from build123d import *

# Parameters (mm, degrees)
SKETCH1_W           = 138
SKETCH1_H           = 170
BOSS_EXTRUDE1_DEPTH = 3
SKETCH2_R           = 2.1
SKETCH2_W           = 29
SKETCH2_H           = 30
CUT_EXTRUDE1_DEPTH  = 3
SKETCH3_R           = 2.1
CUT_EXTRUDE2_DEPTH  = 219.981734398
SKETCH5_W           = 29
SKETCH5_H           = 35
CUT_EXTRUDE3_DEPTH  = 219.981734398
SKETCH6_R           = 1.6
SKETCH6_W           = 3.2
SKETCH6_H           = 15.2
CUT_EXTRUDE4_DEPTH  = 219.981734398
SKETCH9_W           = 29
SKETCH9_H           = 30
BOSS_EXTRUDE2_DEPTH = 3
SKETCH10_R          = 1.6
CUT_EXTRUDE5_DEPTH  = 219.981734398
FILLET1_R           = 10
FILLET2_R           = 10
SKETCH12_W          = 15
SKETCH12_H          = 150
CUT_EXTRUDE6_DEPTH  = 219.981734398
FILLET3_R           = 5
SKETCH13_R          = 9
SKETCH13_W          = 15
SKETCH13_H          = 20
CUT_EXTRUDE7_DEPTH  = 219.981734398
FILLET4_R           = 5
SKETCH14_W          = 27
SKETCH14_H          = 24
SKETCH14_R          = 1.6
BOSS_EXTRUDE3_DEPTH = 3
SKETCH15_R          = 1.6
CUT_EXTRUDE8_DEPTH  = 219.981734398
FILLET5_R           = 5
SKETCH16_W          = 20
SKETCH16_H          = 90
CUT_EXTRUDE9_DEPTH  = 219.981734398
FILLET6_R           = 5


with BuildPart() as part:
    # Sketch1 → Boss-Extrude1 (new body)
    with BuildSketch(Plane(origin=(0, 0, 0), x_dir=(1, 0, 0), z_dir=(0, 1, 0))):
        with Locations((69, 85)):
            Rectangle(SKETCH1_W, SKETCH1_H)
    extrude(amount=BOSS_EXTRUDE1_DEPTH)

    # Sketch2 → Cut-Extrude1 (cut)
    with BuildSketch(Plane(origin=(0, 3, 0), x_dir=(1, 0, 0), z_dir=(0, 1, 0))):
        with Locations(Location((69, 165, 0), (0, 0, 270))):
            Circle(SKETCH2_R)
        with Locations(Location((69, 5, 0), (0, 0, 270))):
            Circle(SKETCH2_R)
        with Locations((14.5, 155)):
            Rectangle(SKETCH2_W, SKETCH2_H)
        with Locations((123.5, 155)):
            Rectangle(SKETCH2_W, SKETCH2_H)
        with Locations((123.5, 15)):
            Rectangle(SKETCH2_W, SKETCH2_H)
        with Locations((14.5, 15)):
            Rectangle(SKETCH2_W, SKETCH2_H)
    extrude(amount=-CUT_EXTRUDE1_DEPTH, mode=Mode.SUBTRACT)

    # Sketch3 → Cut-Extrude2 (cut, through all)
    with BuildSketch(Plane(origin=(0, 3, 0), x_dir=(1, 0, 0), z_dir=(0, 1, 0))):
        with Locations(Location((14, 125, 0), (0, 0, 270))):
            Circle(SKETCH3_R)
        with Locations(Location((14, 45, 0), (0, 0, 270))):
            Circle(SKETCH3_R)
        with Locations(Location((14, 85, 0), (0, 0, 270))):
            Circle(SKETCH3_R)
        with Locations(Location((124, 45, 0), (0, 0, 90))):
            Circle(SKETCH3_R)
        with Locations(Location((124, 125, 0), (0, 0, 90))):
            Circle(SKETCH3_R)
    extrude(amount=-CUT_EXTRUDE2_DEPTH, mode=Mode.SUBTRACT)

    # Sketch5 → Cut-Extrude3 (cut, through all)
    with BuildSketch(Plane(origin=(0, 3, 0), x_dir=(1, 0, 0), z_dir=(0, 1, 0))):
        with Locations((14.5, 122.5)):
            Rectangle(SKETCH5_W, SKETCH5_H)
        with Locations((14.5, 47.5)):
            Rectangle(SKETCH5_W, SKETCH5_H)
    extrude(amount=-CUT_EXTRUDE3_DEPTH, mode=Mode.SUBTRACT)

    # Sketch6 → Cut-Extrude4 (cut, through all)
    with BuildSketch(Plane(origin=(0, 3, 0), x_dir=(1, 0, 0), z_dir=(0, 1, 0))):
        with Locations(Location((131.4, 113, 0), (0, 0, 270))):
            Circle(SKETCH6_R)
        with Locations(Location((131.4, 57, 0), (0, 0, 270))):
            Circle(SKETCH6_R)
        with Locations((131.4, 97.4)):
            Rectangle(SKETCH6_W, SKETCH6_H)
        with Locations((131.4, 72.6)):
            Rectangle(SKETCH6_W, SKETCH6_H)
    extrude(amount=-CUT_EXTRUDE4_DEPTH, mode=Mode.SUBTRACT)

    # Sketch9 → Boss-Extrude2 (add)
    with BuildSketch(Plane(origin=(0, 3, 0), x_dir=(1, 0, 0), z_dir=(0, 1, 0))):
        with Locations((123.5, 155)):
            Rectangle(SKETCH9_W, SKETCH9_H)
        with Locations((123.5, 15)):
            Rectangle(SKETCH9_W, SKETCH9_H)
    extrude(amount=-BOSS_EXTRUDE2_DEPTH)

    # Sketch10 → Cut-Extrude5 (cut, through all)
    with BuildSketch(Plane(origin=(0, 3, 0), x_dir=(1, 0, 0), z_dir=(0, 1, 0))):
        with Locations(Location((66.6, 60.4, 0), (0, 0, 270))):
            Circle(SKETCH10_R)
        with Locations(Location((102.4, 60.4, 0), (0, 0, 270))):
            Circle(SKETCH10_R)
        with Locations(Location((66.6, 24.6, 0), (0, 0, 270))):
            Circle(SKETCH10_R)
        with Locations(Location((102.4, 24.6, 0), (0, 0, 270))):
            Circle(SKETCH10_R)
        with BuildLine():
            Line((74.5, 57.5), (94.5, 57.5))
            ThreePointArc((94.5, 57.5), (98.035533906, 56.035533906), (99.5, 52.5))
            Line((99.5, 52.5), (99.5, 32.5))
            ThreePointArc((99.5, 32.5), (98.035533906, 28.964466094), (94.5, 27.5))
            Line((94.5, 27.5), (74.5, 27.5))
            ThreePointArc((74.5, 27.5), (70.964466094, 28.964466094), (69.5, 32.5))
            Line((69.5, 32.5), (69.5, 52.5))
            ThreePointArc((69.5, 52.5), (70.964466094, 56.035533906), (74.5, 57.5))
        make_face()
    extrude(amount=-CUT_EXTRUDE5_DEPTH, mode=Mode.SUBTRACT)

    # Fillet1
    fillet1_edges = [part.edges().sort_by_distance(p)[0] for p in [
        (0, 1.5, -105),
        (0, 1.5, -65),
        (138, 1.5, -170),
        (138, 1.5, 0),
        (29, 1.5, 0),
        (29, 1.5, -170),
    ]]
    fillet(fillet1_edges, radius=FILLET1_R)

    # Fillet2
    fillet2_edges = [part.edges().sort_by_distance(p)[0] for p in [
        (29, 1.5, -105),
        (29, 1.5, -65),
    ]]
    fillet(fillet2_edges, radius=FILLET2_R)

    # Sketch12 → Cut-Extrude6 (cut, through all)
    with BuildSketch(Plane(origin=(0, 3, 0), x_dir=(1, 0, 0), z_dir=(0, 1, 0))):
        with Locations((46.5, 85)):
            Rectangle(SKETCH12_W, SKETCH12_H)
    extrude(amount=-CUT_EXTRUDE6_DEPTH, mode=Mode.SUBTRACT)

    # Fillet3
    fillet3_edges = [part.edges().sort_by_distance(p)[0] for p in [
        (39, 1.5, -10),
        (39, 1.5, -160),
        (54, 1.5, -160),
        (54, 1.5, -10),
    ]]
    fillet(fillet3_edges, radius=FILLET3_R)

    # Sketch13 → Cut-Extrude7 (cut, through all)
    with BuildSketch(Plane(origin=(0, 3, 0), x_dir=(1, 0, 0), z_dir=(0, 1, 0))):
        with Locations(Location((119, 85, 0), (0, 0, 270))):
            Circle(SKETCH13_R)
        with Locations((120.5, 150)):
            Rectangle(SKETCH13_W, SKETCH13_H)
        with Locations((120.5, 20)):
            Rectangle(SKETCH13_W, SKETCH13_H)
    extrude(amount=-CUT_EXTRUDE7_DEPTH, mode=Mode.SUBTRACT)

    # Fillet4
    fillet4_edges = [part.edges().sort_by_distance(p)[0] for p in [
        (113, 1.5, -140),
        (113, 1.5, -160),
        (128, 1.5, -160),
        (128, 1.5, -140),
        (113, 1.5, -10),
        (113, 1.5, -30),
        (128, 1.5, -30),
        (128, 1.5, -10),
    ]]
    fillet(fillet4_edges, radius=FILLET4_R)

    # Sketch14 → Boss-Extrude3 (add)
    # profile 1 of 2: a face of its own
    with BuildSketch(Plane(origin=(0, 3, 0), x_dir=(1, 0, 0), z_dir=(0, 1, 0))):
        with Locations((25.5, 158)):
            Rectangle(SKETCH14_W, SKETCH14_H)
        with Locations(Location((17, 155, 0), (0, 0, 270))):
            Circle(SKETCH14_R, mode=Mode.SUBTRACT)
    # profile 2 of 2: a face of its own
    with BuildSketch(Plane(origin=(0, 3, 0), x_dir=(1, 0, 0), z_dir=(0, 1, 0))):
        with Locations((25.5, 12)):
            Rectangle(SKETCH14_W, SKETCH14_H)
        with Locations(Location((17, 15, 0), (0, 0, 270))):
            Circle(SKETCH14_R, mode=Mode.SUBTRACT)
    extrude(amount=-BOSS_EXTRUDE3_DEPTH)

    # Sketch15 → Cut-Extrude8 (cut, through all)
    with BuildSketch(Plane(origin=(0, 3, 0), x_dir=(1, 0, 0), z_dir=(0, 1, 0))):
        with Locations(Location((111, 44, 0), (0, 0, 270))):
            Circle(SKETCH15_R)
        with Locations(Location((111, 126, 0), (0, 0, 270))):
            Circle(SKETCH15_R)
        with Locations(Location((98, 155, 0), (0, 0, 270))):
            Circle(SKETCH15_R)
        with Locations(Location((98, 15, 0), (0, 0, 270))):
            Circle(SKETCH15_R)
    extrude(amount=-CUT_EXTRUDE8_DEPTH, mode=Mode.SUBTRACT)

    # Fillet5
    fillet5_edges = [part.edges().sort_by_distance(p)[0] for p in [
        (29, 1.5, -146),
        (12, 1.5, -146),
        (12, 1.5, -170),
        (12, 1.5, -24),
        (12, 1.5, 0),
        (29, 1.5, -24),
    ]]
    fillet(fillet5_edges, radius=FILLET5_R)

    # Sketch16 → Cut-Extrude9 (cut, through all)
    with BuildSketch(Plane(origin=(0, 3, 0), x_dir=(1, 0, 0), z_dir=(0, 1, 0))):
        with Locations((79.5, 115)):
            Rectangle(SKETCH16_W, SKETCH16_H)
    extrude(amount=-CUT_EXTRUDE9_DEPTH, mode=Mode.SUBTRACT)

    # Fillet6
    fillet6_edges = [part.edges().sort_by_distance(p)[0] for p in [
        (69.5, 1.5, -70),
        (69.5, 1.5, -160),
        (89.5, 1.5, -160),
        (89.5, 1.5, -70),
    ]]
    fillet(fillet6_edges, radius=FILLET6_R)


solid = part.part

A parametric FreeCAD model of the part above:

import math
import FreeCAD as App
import Part
import Sketcher
from FreeCAD import Vector


def edges_at(feature, points):
    """Names of the edges that pass closest to the given points."""
    edges = feature.Shape.Edges
    near = lambda p: min(range(len(edges)), key=lambda i: edges[i].distToShape(Part.Vertex(*p))[0])
    return sorted({f"Edge{near(p) + 1}" for p in points})


def add_polygon(sketch, points):
    """Adds a closed chain of lines whose ends are joined by coincident constraints."""
    first, n = sketch.GeometryCount, len(points)
    for a, b in zip(points, points[1:] + points[:1]):
        sketch.addGeometry(Part.LineSegment(App.Vector(*a, 0), App.Vector(*b, 0)), False)
    for i in range(n):
        sketch.addConstraint(Sketcher.Constraint("Coincident", first + i, 2, first + (i + 1) % n, 1))

doc = App.newDocument("Part")
body = doc.addObject("PartDesign::Body", "Body")

# Sketch on XZ plane
sketch1 = body.newObject("Sketcher::SketchObject", "Sketch")
sketch1.AttachmentSupport = (doc.getObject("XZ_Plane"), [""])
sketch1.MapMode = "FlatFace"
add_polygon(sketch1, [(0, -170), (0, 0), (138, 0), (138, -170)])  # lines 0-3
sketch1.addConstraint([
    Sketcher.Constraint("Vertical", 0),
    Sketcher.Constraint("Horizontal", 1),
    Sketcher.Constraint("Vertical", 2),
    Sketcher.Constraint("Horizontal", 3),
    Sketcher.Constraint("Coincident", 0, 2, -1, 1),
    Sketcher.Constraint("DistanceX", 1, 1, 1, 2, 138.0),
    Sketcher.Constraint("DistanceY", 0, 1, 0, 2, 170.0),
])
pad1 = body.newObject("PartDesign::Pad", "Pad")
pad1.Profile = sketch1
pad1.Length = 3
pad1.Reversed = True

# Sketch on XZ plane
sketch2 = body.newObject("Sketcher::SketchObject", "Sketch001")
sketch2.AttachmentSupport = (doc.getObject("XZ_Plane"), [""])
sketch2.MapMode = "FlatFace"
sketch2.AttachmentOffset = App.Placement(Vector(0, 0, -3), App.Rotation())
sketch2.addGeometry(Part.Circle(Vector(69, -165, 0), Vector(0, 0, 1), 2.1), False)  # 0
sketch2.addGeometry(Part.Circle(Vector(69, -5, 0), Vector(0, 0, 1), 2.1), False)  # 1
add_polygon(sketch2, [(0, -170), (0, -140), (29, -140), (29, -170)])  # lines 2-5
add_polygon(sketch2, [(109, -170), (109, -140), (138, -140), (138, -170)])  # lines 6-9
add_polygon(sketch2, [(109, -30), (109, 0), (138, 0), (138, -30)])  # lines 10-13
add_polygon(sketch2, [(0, -30), (0, 0), (29, 0), (29, -30)])  # lines 14-17
sketch2.addConstraint([
    Sketcher.Constraint("Vertical", 2),
    Sketcher.Constraint("Horizontal", 3),
    Sketcher.Constraint("Vertical", 4),
    Sketcher.Constraint("Horizontal", 5),
    Sketcher.Constraint("Vertical", 6),
    Sketcher.Constraint("Horizontal", 7),
    Sketcher.Constraint("Vertical", 8),
    Sketcher.Constraint("Horizontal", 9),
    Sketcher.Constraint("Vertical", 10),
    Sketcher.Constraint("Horizontal", 11),
    Sketcher.Constraint("Vertical", 12),
    Sketcher.Constraint("Horizontal", 13),
    Sketcher.Constraint("Vertical", 14),
    Sketcher.Constraint("Horizontal", 15),
    Sketcher.Constraint("Vertical", 16),
    Sketcher.Constraint("Horizontal", 17),
    Sketcher.Constraint("Coincident", 14, 2, -1, 1),
    Sketcher.Constraint("Equal", 0, 1),
    Sketcher.Constraint("PointOnObject", 2, 2, -2),
    Sketcher.Constraint("PointOnObject", 10, 2, -1),
    Sketcher.Constraint("Horizontal", 3, 2, 6, 2),
    Sketcher.Constraint("Horizontal", 5, 2, 8, 2),
    Sketcher.Constraint("Horizontal", 13, 2, 16, 2),
    Sketcher.Constraint("Vertical", 0, 3, 1, 3),
    Sketcher.Constraint("Vertical", 9, 2, 10, 2),
    Sketcher.Constraint("Vertical", 8, 2, 11, 2),
    Sketcher.Constraint("Vertical", 4, 2, 15, 2),
    Sketcher.Constraint("Equal", 5, 7),
    Sketcher.Constraint("Equal", 8, 10),
    Sketcher.Constraint("Diameter", 0, 4.2),
    Sketcher.Constraint("DistanceX", 3, 1, 3, 2, 29.0),
    Sketcher.Constraint("DistanceY", 2, 1, 2, 2, 30.0),
    Sketcher.Constraint("DistanceX", -1, 1, 0, 3, 69.0),
    Sketcher.Constraint("DistanceY", 0, 3, -1, 1, 165.0),
    Sketcher.Constraint("DistanceY", 1, 3, -1, 1, 5.0),
    Sketcher.Constraint("DistanceY", 2, 2, -1, 1, 140.0),
    Sketcher.Constraint("DistanceX", -1, 1, 6, 2, 109.0),
])
pocket1 = body.newObject("PartDesign::Pocket", "Pocket")
pocket1.Profile = sketch2
pocket1.Length = 3
pocket1.Reversed = True

# Sketch on XZ plane
sketch3 = body.newObject("Sketcher::SketchObject", "Sketch002")
sketch3.AttachmentSupport = (doc.getObject("XZ_Plane"), [""])
sketch3.MapMode = "FlatFace"
sketch3.AttachmentOffset = App.Placement(Vector(0, 0, -3), App.Rotation())
sketch3.addGeometry([
    Part.Circle(Vector(14, -125, 0), Vector(0, 0, 1), 2.1),  # 0
    Part.Circle(Vector(14, -45, 0), Vector(0, 0, 1), 2.1),  # 1
    Part.Circle(Vector(14, -85, 0), Vector(0, 0, 1), 2.1),  # 2
    Part.Circle(Vector(124, -45, 0), Vector(0, 0, 1), 2.1),  # 3
    Part.Circle(Vector(124, -125, 0), Vector(0, 0, 1), 2.1),  # 4
], False)
sketch3.addConstraint([
    Sketcher.Constraint("Equal", 0, 1),
    Sketcher.Constraint("Equal", 1, 2),
    Sketcher.Constraint("Equal", 2, 3),
    Sketcher.Constraint("Equal", 3, 4),
    Sketcher.Constraint("Horizontal", 1, 3, 3, 3),
    Sketcher.Constraint("Horizontal", 0, 3, 4, 3),
    Sketcher.Constraint("Vertical", 0, 3, 1, 3),
    Sketcher.Constraint("Vertical", 1, 3, 2, 3),
    Sketcher.Constraint("Vertical", 3, 3, 4, 3),
    Sketcher.Constraint("Diameter", 0, 4.2),
    Sketcher.Constraint("DistanceX", -1, 1, 0, 3, 14.0),
    Sketcher.Constraint("DistanceY", 0, 3, -1, 1, 125.0),
    Sketcher.Constraint("DistanceY", 1, 3, -1, 1, 45.0),
    Sketcher.Constraint("DistanceY", 2, 3, -1, 1, 85.0),
    Sketcher.Constraint("DistanceX", -1, 1, 3, 3, 124.0),
])
pocket2 = body.newObject("PartDesign::Pocket", "Pocket001")
pocket2.Profile = sketch3
pocket2.Type = "ThroughAll"
pocket2.Reversed = True

# Sketch on XZ plane
sketch4 = body.newObject("Sketcher::SketchObject", "Sketch003")
sketch4.AttachmentSupport = (doc.getObject("XZ_Plane"), [""])
sketch4.MapMode = "FlatFace"
sketch4.AttachmentOffset = App.Placement(Vector(0, 0, -3), App.Rotation())
add_polygon(sketch4, [(0, -140), (0, -105), (29, -105), (29, -140)])  # lines 0-3
add_polygon(sketch4, [(0, -65), (0, -30), (29, -30), (29, -65)])  # lines 4-7
sketch4.addConstraint([
    Sketcher.Constraint("Vertical", 0),
    Sketcher.Constraint("Horizontal", 1),
    Sketcher.Constraint("Vertical", 2),
    Sketcher.Constraint("Horizontal", 3),
    Sketcher.Constraint("Vertical", 4),
    Sketcher.Constraint("Horizontal", 5),
    Sketcher.Constraint("Vertical", 6),
    Sketcher.Constraint("Horizontal", 7),
    Sketcher.Constraint("PointOnObject", 0, 2, -2),
    Sketcher.Constraint("PointOnObject", 4, 2, -2),
    Sketcher.Constraint("Vertical", 2, 2, 5, 2),
    Sketcher.Constraint("Equal", 2, 4),
    Sketcher.Constraint("DistanceX", 1, 1, 1, 2, 29.0),
    Sketcher.Constraint("DistanceY", 0, 1, 0, 2, 35.0),
    Sketcher.Constraint("DistanceY", 0, 2, -1, 1, 105.0),
    Sketcher.Constraint("DistanceY", 4, 2, -1, 1, 30.0),
])
pocket3 = body.newObject("PartDesign::Pocket", "Pocket002")
pocket3.Profile = sketch4
pocket3.Type = "ThroughAll"
pocket3.Reversed = True

# Sketch on XZ plane
sketch5 = body.newObject("Sketcher::SketchObject", "Sketch004")
sketch5.AttachmentSupport = (doc.getObject("XZ_Plane"), [""])
sketch5.MapMode = "FlatFace"
sketch5.AttachmentOffset = App.Placement(Vector(0, 0, -3), App.Rotation())
sketch5.addGeometry(Part.Circle(Vector(131.4, -113, 0), Vector(0, 0, 1), 1.6), False)  # 0
sketch5.addGeometry(Part.Circle(Vector(131.4, -57, 0), Vector(0, 0, 1), 1.6), False)  # 1
add_polygon(sketch5, [(129.8, -105), (129.8, -89.8), (133, -89.8), (133, -105)])  # lines 2-5
add_polygon(sketch5, [(129.8, -80.2), (129.8, -65), (133, -65), (133, -80.2)])  # lines 6-9
sketch5.addConstraint([
    Sketcher.Constraint("Vertical", 2),
    Sketcher.Constraint("Horizontal", 3),
    Sketcher.Constraint("Vertical", 4),
    Sketcher.Constraint("Horizontal", 5),
    Sketcher.Constraint("Vertical", 6),
    Sketcher.Constraint("Horizontal", 7),
    Sketcher.Constraint("Vertical", 8),
    Sketcher.Constraint("Horizontal", 9),
    Sketcher.Constraint("Equal", 0, 1),
    Sketcher.Constraint("Vertical", 0, 3, 1, 3),
    Sketcher.Constraint("Vertical", 5, 2, 6, 2),
    Sketcher.Constraint("Vertical", 4, 2, 7, 2),
    Sketcher.Constraint("Equal", 4, 6),
    Sketcher.Constraint("Diameter", 0, 3.2),
    Sketcher.Constraint("DistanceX", 3, 1, 3, 2, 3.2),
    Sketcher.Constraint("DistanceY", 2, 1, 2, 2, 15.2),
    Sketcher.Constraint("DistanceY", 0, 3, -1, 1, 113.0),
    Sketcher.Constraint("DistanceY", 1, 3, -1, 1, 57.0),
    Sketcher.Constraint("DistanceX", -1, 1, 3, 2, 133.0),
    Sketcher.Constraint("DistanceY", 4, 2, -1, 1, 105.0),
    Sketcher.Constraint("DistanceY", 6, 2, -1, 1, 65.0),
    Sketcher.Constraint("DistanceX", -1, 1, 0, 3, 131.4),
])
pocket4 = body.newObject("PartDesign::Pocket", "Pocket003")
pocket4.Profile = sketch5
pocket4.Type = "ThroughAll"
pocket4.Reversed = True

# Sketch on XZ plane
sketch6 = body.newObject("Sketcher::SketchObject", "Sketch005")
sketch6.AttachmentSupport = (doc.getObject("XZ_Plane"), [""])
sketch6.MapMode = "FlatFace"
sketch6.AttachmentOffset = App.Placement(Vector(0, 0, -3), App.Rotation())
add_polygon(sketch6, [(109, -170), (109, -140), (138, -140), (138, -170)])  # lines 0-3
add_polygon(sketch6, [(109, -30), (109, 0), (138, 0), (138, -30)])  # lines 4-7
sketch6.addConstraint([
    Sketcher.Constraint("Vertical", 0),
    Sketcher.Constraint("Horizontal", 1),
    Sketcher.Constraint("Vertical", 2),
    Sketcher.Constraint("Horizontal", 3),
    Sketcher.Constraint("Vertical", 4),
    Sketcher.Constraint("Horizontal", 5),
    Sketcher.Constraint("Vertical", 6),
    Sketcher.Constraint("Horizontal", 7),
    Sketcher.Constraint("PointOnObject", 4, 2, -1),
    Sketcher.Constraint("Vertical", 3, 2, 4, 2),
    Sketcher.Constraint("Vertical", 2, 2, 5, 2),
    Sketcher.Constraint("Equal", 2, 4),
    Sketcher.Constraint("DistanceX", 1, 1, 1, 2, 29.0),
    Sketcher.Constraint("DistanceY", 0, 1, 0, 2, 30.0),
    Sketcher.Constraint("DistanceX", -1, 1, 0, 2, 109.0),
    Sketcher.Constraint("DistanceY", 0, 2, -1, 1, 140.0),
])
pad2 = body.newObject("PartDesign::Pad", "Pad001")
pad2.Profile = sketch6
pad2.Length = 3

# Sketch on XZ plane
sketch7 = body.newObject("Sketcher::SketchObject", "Sketch006")
sketch7.AttachmentSupport = (doc.getObject("XZ_Plane"), [""])
sketch7.MapMode = "FlatFace"
sketch7.AttachmentOffset = App.Placement(Vector(0, 0, -3), App.Rotation())
sketch7.addGeometry([
    Part.Circle(Vector(66.6, -60.4, 0), Vector(0, 0, 1), 1.6),  # 0
    Part.Circle(Vector(102.4, -60.4, 0), Vector(0, 0, 1), 1.6),  # 1
    Part.Circle(Vector(66.6, -24.6, 0), Vector(0, 0, 1), 1.6),  # 2
    Part.Circle(Vector(102.4, -24.6, 0), Vector(0, 0, 1), 1.6),  # 3
    Part.LineSegment(Vector(94.5, -57.5, 0), Vector(74.5, -57.5, 0)),  # 4
    Part.ArcOfCircle(Part.Circle(Vector(74.5, -52.5, 0), Vector(0, 0, 1), 5), math.radians(180), math.radians(270)),  # 5
    Part.LineSegment(Vector(69.5, -52.5, 0), Vector(69.5, -32.5, 0)),  # 6
    Part.ArcOfCircle(Part.Circle(Vector(74.5, -32.5, 0), Vector(0, 0, 1), 5), math.radians(90), math.radians(180)),  # 7
    Part.LineSegment(Vector(74.5, -27.5, 0), Vector(94.5, -27.5, 0)),  # 8
    Part.ArcOfCircle(Part.Circle(Vector(94.5, -32.5, 0), Vector(0, 0, 1), 5), math.radians(0), math.radians(90)),  # 9
    Part.LineSegment(Vector(99.5, -32.5, 0), Vector(99.5, -52.5, 0)),  # 10
    Part.ArcOfCircle(Part.Circle(Vector(94.5, -52.5, 0), Vector(0, 0, 1), 5), math.radians(-90), math.radians(0)),  # 11
], False)
sketch7.addConstraint([
    Sketcher.Constraint("Tangent", 4, 2, 5, 2),
    Sketcher.Constraint("Tangent", 5, 1, 6, 1),
    Sketcher.Constraint("Tangent", 6, 2, 7, 2),
    Sketcher.Constraint("Tangent", 7, 1, 8, 1),
    Sketcher.Constraint("Tangent", 8, 2, 9, 2),
    Sketcher.Constraint("Tangent", 9, 1, 10, 1),
    Sketcher.Constraint("Tangent", 10, 2, 11, 2),
    Sketcher.Constraint("Tangent", 11, 1, 4, 1),
    Sketcher.Constraint("Horizontal", 4),
    Sketcher.Constraint("Vertical", 6),
    Sketcher.Constraint("Horizontal", 8),
    Sketcher.Constraint("Vertical", 10),
    Sketcher.Constraint("Equal", 0, 1),
    Sketcher.Constraint("Equal", 1, 2),
    Sketcher.Constraint("Equal", 2, 3),
    Sketcher.Constraint("Equal", 5, 7),
    Sketcher.Constraint("Equal", 7, 9),
    Sketcher.Constraint("Equal", 9, 11),
    Sketcher.Constraint("Horizontal", 0, 3, 1, 3),
    Sketcher.Constraint("Horizontal", 2, 3, 3, 3),
    Sketcher.Constraint("Vertical", 0, 3, 2, 3),
    Sketcher.Constraint("Vertical", 1, 3, 3, 3),
    Sketcher.Constraint("Equal", 8, 6),
    Sketcher.Constraint("Radius", 5, 5.0),
    Sketcher.Constraint("Diameter", 0, 3.2),
    Sketcher.Constraint("DistanceX", 4, 2, 4, 1, 20.0),
    Sketcher.Constraint("DistanceX", -1, 1, 0, 3, 66.6),
    Sketcher.Constraint("DistanceY", 0, 3, -1, 1, 60.4),
    Sketcher.Constraint("DistanceX", -1, 1, 1, 3, 102.4),
    Sketcher.Constraint("DistanceY", 2, 3, -1, 1, 24.6),
    Sketcher.Constraint("DistanceX", -1, 1, 5, 3, 74.5),
    Sketcher.Constraint("DistanceY", 5, 3, -1, 1, 52.5),
])
pocket5 = body.newObject("PartDesign::Pocket", "Pocket004")
pocket5.Profile = sketch7
pocket5.Type = "ThroughAll"
pocket5.Reversed = True
doc.recompute()

fillet = body.newObject("PartDesign::Fillet", "Fillet")
fillet.Base = (pocket5, edges_at(pocket5, [
    (0, 1.5, -105),
    (0, 1.5, -65),
    (138, 1.5, -170),
    (138, 1.5, 0),
    (29, 1.5, 0),
    (29, 1.5, -170),
]))
fillet.Radius = 10
doc.recompute()

fillet2 = body.newObject("PartDesign::Fillet", "Fillet001")
fillet2.Base = (fillet, edges_at(fillet, [(29, 1.5, -105), (29, 1.5, -65)]))
fillet2.Radius = 10

# Sketch on XZ plane
sketch8 = body.newObject("Sketcher::SketchObject", "Sketch007")
sketch8.AttachmentSupport = (doc.getObject("XZ_Plane"), [""])
sketch8.MapMode = "FlatFace"
sketch8.AttachmentOffset = App.Placement(Vector(0, 0, -3), App.Rotation())
add_polygon(sketch8, [(39, -160), (39, -10), (54, -10), (54, -160)])  # lines 0-3
sketch8.addConstraint([
    Sketcher.Constraint("Vertical", 0),
    Sketcher.Constraint("Horizontal", 1),
    Sketcher.Constraint("Vertical", 2),
    Sketcher.Constraint("Horizontal", 3),
    Sketcher.Constraint("DistanceX", 1, 1, 1, 2, 15.0),
    Sketcher.Constraint("DistanceY", 0, 1, 0, 2, 150.0),
    Sketcher.Constraint("DistanceX", -1, 1, 0, 2, 39.0),
    Sketcher.Constraint("DistanceY", 0, 2, -1, 1, 10.0),
])
pocket6 = body.newObject("PartDesign::Pocket", "Pocket005")
pocket6.Profile = sketch8
pocket6.Type = "ThroughAll"
pocket6.Reversed = True
doc.recompute()

fillet3 = body.newObject("PartDesign::Fillet", "Fillet002")
fillet3.Base = (pocket6, edges_at(pocket6, [
    (39, 1.5, -10),
    (39, 1.5, -160),
    (54, 1.5, -160),
    (54, 1.5, -10),
]))
fillet3.Radius = 5

# Sketch on XZ plane
sketch9 = body.newObject("Sketcher::SketchObject", "Sketch008")
sketch9.AttachmentSupport = (doc.getObject("XZ_Plane"), [""])
sketch9.MapMode = "FlatFace"
sketch9.AttachmentOffset = App.Placement(Vector(0, 0, -3), App.Rotation())
sketch9.addGeometry(Part.Circle(Vector(119, -85, 0), Vector(0, 0, 1), 9), False)  # 0
add_polygon(sketch9, [(113, -160), (113, -140), (128, -140), (128, -160)])  # lines 1-4
add_polygon(sketch9, [(113, -30), (113, -10), (128, -10), (128, -30)])  # lines 5-8
sketch9.addConstraint([
    Sketcher.Constraint("Vertical", 1),
    Sketcher.Constraint("Horizontal", 2),
    Sketcher.Constraint("Vertical", 3),
    Sketcher.Constraint("Horizontal", 4),
    Sketcher.Constraint("Vertical", 5),
    Sketcher.Constraint("Horizontal", 6),
    Sketcher.Constraint("Vertical", 7),
    Sketcher.Constraint("Horizontal", 8),
    Sketcher.Constraint("Vertical", 4, 2, 5, 2),
    Sketcher.Constraint("Vertical", 3, 2, 6, 2),
    Sketcher.Constraint("Equal", 3, 5),
    Sketcher.Constraint("Diameter", 0, 18.0),
    Sketcher.Constraint("DistanceX", 2, 1, 2, 2, 15.0),
    Sketcher.Constraint("DistanceY", 1, 1, 1, 2, 20.0),
    Sketcher.Constraint("DistanceX", -1, 1, 0, 3, 119.0),
    Sketcher.Constraint("DistanceY", 0, 3, -1, 1, 85.0),
    Sketcher.Constraint("DistanceX", -1, 1, 1, 2, 113.0),
    Sketcher.Constraint("DistanceY", 1, 2, -1, 1, 140.0),
    Sketcher.Constraint("DistanceY", 5, 2, -1, 1, 10.0),
])
pocket7 = body.newObject("PartDesign::Pocket", "Pocket006")
pocket7.Profile = sketch9
pocket7.Type = "ThroughAll"
pocket7.Reversed = True
doc.recompute()

fillet4 = body.newObject("PartDesign::Fillet", "Fillet003")
fillet4.Base = (pocket7, edges_at(pocket7, [
    (113, 1.5, -140),
    (113, 1.5, -160),
    (128, 1.5, -160),
    (128, 1.5, -140),
    (113, 1.5, -10),
    (113, 1.5, -30),
    (128, 1.5, -30),
    (128, 1.5, -10),
]))
fillet4.Radius = 5

# Sketch on XZ plane
sketch10 = body.newObject("Sketcher::SketchObject", "Sketch009")
sketch10.AttachmentSupport = (doc.getObject("XZ_Plane"), [""])
sketch10.MapMode = "FlatFace"
sketch10.AttachmentOffset = App.Placement(Vector(0, 0, -3), App.Rotation())
add_polygon(sketch10, [(12, -170), (12, -146), (39, -146), (39, -170)])  # lines 0-3
sketch10.addGeometry(Part.Circle(Vector(17, -155, 0), Vector(0, 0, 1), 1.6), False)  # 4
add_polygon(sketch10, [(12, -24), (12, 0), (39, 0), (39, -24)])  # lines 5-8
sketch10.addGeometry(Part.Circle(Vector(17, -15, 0), Vector(0, 0, 1), 1.6), False)  # 9
sketch10.addConstraint([
    Sketcher.Constraint("Vertical", 0),
    Sketcher.Constraint("Horizontal", 1),
    Sketcher.Constraint("Vertical", 2),
    Sketcher.Constraint("Horizontal", 3),
    Sketcher.Constraint("Vertical", 5),
    Sketcher.Constraint("Horizontal", 6),
    Sketcher.Constraint("Vertical", 7),
    Sketcher.Constraint("Horizontal", 8),
    Sketcher.Constraint("Equal", 4, 9),
    Sketcher.Constraint("PointOnObject", 5, 2, -1),
    Sketcher.Constraint("Vertical", 4, 3, 9, 3),
    Sketcher.Constraint("Vertical", 3, 2, 5, 2),
    Sketcher.Constraint("Vertical", 2, 2, 6, 2),
    Sketcher.Constraint("Equal", 2, 5),
    Sketcher.Constraint("Diameter", 4, 3.2),
    Sketcher.Constraint("DistanceX", 1, 1, 1, 2, 27.0),
    Sketcher.Constraint("DistanceY", 0, 1, 0, 2, 24.0),
    Sketcher.Constraint("DistanceX", -1, 1, 4, 3, 17.0),
    Sketcher.Constraint("DistanceY", 4, 3, -1, 1, 155.0),
    Sketcher.Constraint("DistanceY", 9, 3, -1, 1, 15.0),
    Sketcher.Constraint("DistanceX", -1, 1, 0, 2, 12.0),
    Sketcher.Constraint("DistanceY", 0, 2, -1, 1, 146.0),
])
pad3 = body.newObject("PartDesign::Pad", "Pad002")
pad3.Profile = sketch10
pad3.Length = 3

# Sketch on XZ plane
sketch11 = body.newObject("Sketcher::SketchObject", "Sketch010")
sketch11.AttachmentSupport = (doc.getObject("XZ_Plane"), [""])
sketch11.MapMode = "FlatFace"
sketch11.AttachmentOffset = App.Placement(Vector(0, 0, -3), App.Rotation())
sketch11.addGeometry([
    Part.Circle(Vector(111, -44, 0), Vector(0, 0, 1), 1.6),
    Part.Circle(Vector(111, -126, 0), Vector(0, 0, 1), 1.6),
    Part.Circle(Vector(98, -155, 0), Vector(0, 0, 1), 1.6),
    Part.Circle(Vector(98, -15, 0), Vector(0, 0, 1), 1.6),
], False)
sketch11.addConstraint([
    Sketcher.Constraint("Equal", 0, 1),
    Sketcher.Constraint("Equal", 1, 2),
    Sketcher.Constraint("Equal", 2, 3),
    Sketcher.Constraint("Vertical", 0, 3, 1, 3),
    Sketcher.Constraint("Vertical", 2, 3, 3, 3),
    Sketcher.Constraint("Diameter", 0, 3.2),
    Sketcher.Constraint("DistanceX", -1, 1, 0, 3, 111.0),
    Sketcher.Constraint("DistanceY", 0, 3, -1, 1, 44.0),
    Sketcher.Constraint("DistanceY", 1, 3, -1, 1, 126.0),
    Sketcher.Constraint("DistanceX", -1, 1, 2, 3, 98.0),
    Sketcher.Constraint("DistanceY", 2, 3, -1, 1, 155.0),
    Sketcher.Constraint("DistanceY", 3, 3, -1, 1, 15.0),
])
pocket8 = body.newObject("PartDesign::Pocket", "Pocket007")
pocket8.Profile = sketch11
pocket8.Type = "ThroughAll"
pocket8.Reversed = True
doc.recompute()

fillet5 = body.newObject("PartDesign::Fillet", "Fillet004")
fillet5.Base = (pocket8, edges_at(pocket8, [
    (29, 1.5, -146),
    (12, 1.5, -146),
    (12, 1.5, -170),
    (12, 1.5, -24),
    (12, 1.5, 0),
    (29, 1.5, -24),
]))
fillet5.Radius = 5

# Sketch on XZ plane
sketch12 = body.newObject("Sketcher::SketchObject", "Sketch011")
sketch12.AttachmentSupport = (doc.getObject("XZ_Plane"), [""])
sketch12.MapMode = "FlatFace"
sketch12.AttachmentOffset = App.Placement(Vector(0, 0, -3), App.Rotation())
add_polygon(sketch12, [(70, -160), (70, -70), (90, -70), (90, -160)])  # lines 0-3
sketch12.addConstraint([
    Sketcher.Constraint("Vertical", 0),
    Sketcher.Constraint("Horizontal", 1),
    Sketcher.Constraint("Vertical", 2),
    Sketcher.Constraint("Horizontal", 3),
    Sketcher.Constraint("DistanceX", 1, 1, 1, 2, 20.0),
    Sketcher.Constraint("DistanceY", 0, 1, 0, 2, 90.0),
    Sketcher.Constraint("DistanceY", 0, 2, -1, 1, 70.0),
    Sketcher.Constraint("DistanceX", -1, 1, 0, 2, 69.5),
])
pocket9 = body.newObject("PartDesign::Pocket", "Pocket008")
pocket9.Profile = sketch12
pocket9.Type = "ThroughAll"
pocket9.Reversed = True
doc.recompute()

fillet6 = body.newObject("PartDesign::Fillet", "Fillet005")
fillet6.Base = (pocket9, edges_at(pocket9, [
    (69.5, 1.5, -70),
    (69.5, 1.5, -160),
    (89.5, 1.5, -160),
    (89.5, 1.5, -70),
]))
fillet6.Radius = 5

doc.recompute()
